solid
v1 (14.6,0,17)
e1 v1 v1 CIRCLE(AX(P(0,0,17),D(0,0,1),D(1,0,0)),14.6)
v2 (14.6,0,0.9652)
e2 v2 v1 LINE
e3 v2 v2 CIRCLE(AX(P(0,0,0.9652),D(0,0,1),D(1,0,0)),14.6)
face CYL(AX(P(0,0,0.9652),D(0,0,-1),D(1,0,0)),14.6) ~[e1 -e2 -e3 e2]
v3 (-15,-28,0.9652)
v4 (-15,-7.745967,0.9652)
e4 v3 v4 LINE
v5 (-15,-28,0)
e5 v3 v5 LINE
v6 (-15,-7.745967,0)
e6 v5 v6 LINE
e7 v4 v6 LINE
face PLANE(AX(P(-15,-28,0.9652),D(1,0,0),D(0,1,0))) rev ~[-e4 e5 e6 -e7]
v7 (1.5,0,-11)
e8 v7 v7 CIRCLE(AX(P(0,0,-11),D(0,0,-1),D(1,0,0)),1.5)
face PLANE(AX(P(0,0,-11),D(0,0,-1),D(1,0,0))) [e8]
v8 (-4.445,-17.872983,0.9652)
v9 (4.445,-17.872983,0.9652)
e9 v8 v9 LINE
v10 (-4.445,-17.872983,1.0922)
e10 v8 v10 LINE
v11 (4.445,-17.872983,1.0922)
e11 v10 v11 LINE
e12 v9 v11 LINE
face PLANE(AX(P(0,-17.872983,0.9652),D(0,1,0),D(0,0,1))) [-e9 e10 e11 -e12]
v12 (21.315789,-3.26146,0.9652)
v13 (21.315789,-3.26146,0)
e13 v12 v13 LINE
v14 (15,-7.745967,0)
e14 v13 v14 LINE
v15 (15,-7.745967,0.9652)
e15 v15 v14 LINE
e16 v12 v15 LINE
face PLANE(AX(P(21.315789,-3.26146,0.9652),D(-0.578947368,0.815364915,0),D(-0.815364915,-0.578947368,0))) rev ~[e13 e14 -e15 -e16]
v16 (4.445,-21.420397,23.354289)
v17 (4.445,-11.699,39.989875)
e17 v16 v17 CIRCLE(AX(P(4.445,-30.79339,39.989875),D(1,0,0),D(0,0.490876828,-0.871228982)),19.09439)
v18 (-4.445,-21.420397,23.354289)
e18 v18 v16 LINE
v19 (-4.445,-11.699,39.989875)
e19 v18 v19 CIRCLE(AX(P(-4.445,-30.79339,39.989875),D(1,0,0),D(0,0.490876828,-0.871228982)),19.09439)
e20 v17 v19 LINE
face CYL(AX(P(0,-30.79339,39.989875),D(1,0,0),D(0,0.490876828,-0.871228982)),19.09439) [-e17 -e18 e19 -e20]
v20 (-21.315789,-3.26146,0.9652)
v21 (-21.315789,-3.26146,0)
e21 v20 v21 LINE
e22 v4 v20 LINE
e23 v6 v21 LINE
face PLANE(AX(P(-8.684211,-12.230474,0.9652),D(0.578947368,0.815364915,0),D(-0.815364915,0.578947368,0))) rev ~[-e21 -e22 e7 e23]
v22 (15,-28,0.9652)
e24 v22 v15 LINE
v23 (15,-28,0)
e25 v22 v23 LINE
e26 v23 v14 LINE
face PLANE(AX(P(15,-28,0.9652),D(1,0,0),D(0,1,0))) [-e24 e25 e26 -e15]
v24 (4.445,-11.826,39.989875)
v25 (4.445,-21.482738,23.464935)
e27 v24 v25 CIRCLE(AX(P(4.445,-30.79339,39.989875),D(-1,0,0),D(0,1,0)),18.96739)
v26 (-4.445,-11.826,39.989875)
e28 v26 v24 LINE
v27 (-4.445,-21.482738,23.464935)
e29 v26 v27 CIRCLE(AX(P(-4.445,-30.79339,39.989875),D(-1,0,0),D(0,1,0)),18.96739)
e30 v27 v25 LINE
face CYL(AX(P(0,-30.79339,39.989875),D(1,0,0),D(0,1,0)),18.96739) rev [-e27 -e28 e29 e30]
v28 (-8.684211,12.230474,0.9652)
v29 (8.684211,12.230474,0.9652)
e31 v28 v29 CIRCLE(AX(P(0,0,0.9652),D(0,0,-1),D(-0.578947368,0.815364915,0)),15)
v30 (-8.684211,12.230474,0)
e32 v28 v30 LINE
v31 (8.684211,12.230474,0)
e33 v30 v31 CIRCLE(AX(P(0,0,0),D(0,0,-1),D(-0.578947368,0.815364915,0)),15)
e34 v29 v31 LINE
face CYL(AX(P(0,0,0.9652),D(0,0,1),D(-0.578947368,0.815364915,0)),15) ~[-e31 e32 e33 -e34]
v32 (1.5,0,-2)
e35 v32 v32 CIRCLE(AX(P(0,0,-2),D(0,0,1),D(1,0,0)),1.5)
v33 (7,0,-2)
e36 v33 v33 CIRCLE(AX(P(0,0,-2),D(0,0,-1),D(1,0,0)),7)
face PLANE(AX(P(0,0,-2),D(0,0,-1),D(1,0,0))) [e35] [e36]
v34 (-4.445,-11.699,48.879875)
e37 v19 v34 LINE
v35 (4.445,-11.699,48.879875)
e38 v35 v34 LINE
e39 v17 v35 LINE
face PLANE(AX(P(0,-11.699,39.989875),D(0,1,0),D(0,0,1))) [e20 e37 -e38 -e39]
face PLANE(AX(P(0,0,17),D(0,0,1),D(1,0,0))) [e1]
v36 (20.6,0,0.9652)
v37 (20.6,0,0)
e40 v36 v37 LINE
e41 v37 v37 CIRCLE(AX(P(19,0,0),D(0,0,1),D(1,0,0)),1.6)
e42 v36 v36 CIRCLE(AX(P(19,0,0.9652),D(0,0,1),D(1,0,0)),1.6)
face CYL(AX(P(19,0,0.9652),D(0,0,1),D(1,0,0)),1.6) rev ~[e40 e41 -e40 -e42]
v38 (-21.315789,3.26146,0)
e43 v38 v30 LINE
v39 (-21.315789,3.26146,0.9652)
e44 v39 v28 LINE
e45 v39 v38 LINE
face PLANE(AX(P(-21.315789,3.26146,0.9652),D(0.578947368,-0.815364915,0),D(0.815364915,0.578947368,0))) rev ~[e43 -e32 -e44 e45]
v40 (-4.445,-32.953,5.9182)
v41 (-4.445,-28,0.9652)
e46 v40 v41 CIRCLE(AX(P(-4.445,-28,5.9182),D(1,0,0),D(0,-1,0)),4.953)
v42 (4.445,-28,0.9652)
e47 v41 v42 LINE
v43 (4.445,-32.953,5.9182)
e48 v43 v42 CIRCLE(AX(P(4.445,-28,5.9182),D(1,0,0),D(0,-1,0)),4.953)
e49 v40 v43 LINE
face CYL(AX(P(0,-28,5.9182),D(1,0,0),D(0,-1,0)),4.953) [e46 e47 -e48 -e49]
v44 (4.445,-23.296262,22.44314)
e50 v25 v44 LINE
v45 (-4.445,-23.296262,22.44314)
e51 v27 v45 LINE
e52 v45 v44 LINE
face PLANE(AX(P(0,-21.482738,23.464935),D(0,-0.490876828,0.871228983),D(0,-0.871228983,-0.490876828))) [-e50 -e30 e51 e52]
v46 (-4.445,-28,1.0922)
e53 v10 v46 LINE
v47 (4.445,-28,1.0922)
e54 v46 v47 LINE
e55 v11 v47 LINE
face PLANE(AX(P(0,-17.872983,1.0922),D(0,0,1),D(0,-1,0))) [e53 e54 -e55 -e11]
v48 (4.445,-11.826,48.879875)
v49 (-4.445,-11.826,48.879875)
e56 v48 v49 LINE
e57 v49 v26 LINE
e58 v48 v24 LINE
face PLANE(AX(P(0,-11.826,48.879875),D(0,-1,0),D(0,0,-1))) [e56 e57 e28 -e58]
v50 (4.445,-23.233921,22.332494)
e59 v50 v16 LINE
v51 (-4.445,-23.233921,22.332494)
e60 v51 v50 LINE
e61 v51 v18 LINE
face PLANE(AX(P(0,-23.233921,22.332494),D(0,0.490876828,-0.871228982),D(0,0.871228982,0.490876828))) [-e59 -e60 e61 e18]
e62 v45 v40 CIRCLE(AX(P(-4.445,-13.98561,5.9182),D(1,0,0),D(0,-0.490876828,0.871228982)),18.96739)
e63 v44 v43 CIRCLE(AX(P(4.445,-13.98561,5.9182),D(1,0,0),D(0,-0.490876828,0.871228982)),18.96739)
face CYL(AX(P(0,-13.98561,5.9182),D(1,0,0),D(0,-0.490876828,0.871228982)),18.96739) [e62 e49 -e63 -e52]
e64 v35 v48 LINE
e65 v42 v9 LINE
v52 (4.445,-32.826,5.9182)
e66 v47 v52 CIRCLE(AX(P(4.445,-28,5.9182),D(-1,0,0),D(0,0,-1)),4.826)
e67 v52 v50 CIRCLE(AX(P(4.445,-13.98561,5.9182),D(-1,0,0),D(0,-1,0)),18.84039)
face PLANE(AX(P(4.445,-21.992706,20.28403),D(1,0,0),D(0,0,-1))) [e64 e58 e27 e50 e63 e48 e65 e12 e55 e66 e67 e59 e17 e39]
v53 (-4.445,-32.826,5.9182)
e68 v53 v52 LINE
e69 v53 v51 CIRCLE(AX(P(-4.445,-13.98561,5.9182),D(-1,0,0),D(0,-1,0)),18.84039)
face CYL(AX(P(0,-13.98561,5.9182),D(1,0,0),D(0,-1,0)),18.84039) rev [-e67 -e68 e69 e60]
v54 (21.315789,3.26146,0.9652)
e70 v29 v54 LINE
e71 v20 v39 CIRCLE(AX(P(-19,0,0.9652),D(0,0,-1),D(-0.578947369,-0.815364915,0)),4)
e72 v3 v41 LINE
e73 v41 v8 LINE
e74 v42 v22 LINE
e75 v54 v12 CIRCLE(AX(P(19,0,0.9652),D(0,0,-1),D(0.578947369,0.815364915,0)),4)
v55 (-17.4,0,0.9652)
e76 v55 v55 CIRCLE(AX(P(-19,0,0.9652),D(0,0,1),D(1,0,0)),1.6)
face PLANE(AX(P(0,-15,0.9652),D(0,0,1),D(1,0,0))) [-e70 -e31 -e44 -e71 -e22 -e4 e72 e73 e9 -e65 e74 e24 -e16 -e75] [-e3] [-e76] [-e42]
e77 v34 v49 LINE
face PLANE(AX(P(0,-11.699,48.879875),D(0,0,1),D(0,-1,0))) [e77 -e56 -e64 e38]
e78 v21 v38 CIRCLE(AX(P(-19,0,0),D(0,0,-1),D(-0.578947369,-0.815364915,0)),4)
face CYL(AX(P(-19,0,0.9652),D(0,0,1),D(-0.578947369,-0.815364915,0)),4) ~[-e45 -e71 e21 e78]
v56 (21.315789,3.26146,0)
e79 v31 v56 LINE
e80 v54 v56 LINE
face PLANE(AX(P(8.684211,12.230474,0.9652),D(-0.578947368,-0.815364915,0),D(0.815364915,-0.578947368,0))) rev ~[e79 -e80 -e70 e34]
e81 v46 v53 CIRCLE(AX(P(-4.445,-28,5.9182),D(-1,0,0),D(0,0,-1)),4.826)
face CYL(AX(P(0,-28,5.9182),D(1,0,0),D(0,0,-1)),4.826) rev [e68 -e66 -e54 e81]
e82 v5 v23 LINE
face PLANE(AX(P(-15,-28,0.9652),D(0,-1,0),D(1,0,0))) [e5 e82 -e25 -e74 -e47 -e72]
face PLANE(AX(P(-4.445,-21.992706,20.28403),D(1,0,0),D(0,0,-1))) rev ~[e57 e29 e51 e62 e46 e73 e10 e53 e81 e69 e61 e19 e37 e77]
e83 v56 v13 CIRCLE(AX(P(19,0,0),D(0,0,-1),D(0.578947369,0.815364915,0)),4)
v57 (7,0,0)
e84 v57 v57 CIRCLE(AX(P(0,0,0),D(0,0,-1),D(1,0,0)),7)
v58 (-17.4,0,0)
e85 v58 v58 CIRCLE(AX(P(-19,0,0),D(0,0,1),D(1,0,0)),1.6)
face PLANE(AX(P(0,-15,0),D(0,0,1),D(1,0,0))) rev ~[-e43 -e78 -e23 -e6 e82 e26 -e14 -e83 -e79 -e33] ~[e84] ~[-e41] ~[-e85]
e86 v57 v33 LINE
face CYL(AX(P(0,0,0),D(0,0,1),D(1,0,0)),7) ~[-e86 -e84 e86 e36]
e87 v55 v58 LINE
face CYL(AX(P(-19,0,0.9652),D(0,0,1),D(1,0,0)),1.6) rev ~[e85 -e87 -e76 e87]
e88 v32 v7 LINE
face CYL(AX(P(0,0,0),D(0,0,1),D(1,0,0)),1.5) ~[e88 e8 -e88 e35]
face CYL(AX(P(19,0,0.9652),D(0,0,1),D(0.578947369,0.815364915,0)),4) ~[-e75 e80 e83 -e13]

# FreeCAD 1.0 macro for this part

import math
import FreeCAD as App
import Part
import Sketcher

V = App.Vector

doc = App.newDocument("Part")
body = doc.addObject("PartDesign::Body", "Body")

# Sketch on XY plane
sketch1 = body.newObject("Sketcher::SketchObject", "Sketch")
sketch1.AttachmentSupport = (doc.getObject("XY_Plane"), [""])
sketch1.MapMode = "FlatFace"
sketch1.addGeometry(Part.Circle(V(0, 0, 0), V(0, 0, 1), 15), False)
sketch1.addConstraint([
    Sketcher.Constraint("Coincident", 0, 3, -1, 1),
    Sketcher.Constraint("Diameter", 0, 30.0),
])
pad1 = body.newObject("PartDesign::Pad", "Pad")
pad1.Profile = sketch1
pad1.Length = 0.9652

# Sketch on XY plane
sketch2 = body.newObject("Sketcher::SketchObject", "Sketch001")
sketch2.AttachmentSupport = (doc.getObject("XY_Plane"), [""])
sketch2.MapMode = "FlatFace"
sketch2.AttachmentOffset = App.Placement(V(0, 0, 0.9652), App.Rotation())
sketch2.addGeometry([
    Part.LineSegment(V(-8.7, 12.2, 0), V(-21.3, 3.3, 0)),  # 0
    Part.ArcOfCircle(Part.Circle(V(-19, 0, 0), V(0, 0, 1), 4), math.radians(125), math.radians(235)),  # 1
    Part.LineSegment(V(-21.3, -3.3, 0), V(-8.7, -12.2, 0)),  # 2
    Part.ArcOfCircle(Part.Circle(V(0, 0, 0), V(0, 0, 1), 15), math.radians(-125), math.radians(-55)),  # 3
    Part.LineSegment(V(8.7, -12.2, 0), V(21.3, -3.3, 0)),  # 4
    Part.ArcOfCircle(Part.Circle(V(19, 0, 0), V(0, 0, 1), 4), math.radians(-55), math.radians(55)),  # 5
    Part.LineSegment(V(21.3, 3.3, 0), V(8.7, 12.2, 0)),  # 6
    Part.ArcOfCircle(Part.Circle(V(0, 0, 0), V(0, 0, 1), 15), math.radians(55), math.radians(125)),  # 7
    Part.Circle(V(19, 0, 0), V(0, 0, 1), 1.6),  # 8
    Part.Circle(V(-19, 0, 0), V(0, 0, 1), 1.6),  # 9
], False)
sketch2.addConstraint([
    Sketcher.Constraint("Tangent", 0, 2, 1, 1),
    Sketcher.Constraint("Tangent", 1, 2, 2, 1),
    Sketcher.Constraint("Tangent", 2, 2, 3, 1),
    Sketcher.Constraint("Tangent", 3, 2, 4, 1),
    Sketcher.Constraint("Tangent", 4, 2, 5, 1),
    Sketcher.Constraint("Tangent", 5, 2, 6, 1),
    Sketcher.Constraint("Tangent", 6, 2, 7, 1),
    Sketcher.Constraint("Tangent", 7, 2, 0, 1),
    Sketcher.Constraint("Coincident", 3, 3, -1, 1),
    Sketcher.Constraint("Coincident", 7, 3, -1, 1),
    Sketcher.Constraint("Coincident", 8, 3, 5, 3),
    Sketcher.Constraint("Coincident", 9, 3, 1, 3),
    Sketcher.Constraint("Equal", 1, 5),
    Sketcher.Constraint("Equal", 3, 7),
    Sketcher.Constraint("Equal", 8, 9),
    Sketcher.Constraint("Symmetric", 1, 3, 5, 3, -1, 1),
    Sketcher.Constraint("PointOnObject", 1, 3, -1),
    Sketcher.Constraint("Radius", 1, 4.0),
    Sketcher.Constraint("Radius", 3, 15.0),
    Sketcher.Constraint("Diameter", 8, 3.2),
    Sketcher.Constraint("DistanceX", 1, 3, -1, 1, 19.0),
])
pad2 = body.newObject("PartDesign::Pad", "Pad001")
pad2.Profile = sketch2
pad2.Type = "UpToLast"
pad2.Reversed = True

# Sketch on XY plane
sketch3 = body.newObject("Sketcher::SketchObject", "Sketch002")
sketch3.AttachmentSupport = (doc.getObject("XY_Plane"), [""])
sketch3.MapMode = "FlatFace"
sketch3.AttachmentOffset = App.Placement(V(0, 0, 0.9652), App.Rotation())
sketch3.addGeometry([
    Part.LineSegment(V(-15, -2, 0), V(-15, -28, 0)),
    Part.LineSegment(V(-15, -28, 0), V(15, -28, 0)),
    Part.LineSegment(V(15, -28, 0), V(15, -2, 0)),
    Part.LineSegment(V(15, -2, 0), V(-15, -2, 0)),
], False)
sketch3.addConstraint([
    Sketcher.Constraint("Coincident", 0, 2, 1, 1),
    Sketcher.Constraint("Coincident", 1, 2, 2, 1),
    Sketcher.Constraint("Coincident", 2, 2, 3, 1),
    Sketcher.Constraint("Coincident", 3, 2, 0, 1),
    Sketcher.Constraint("Vertical", 0),
    Sketcher.Constraint("Horizontal", 1),
    Sketcher.Constraint("Vertical", 2),
    Sketcher.Constraint("Horizontal", 3),
    Sketcher.Constraint("DistanceX", 1, 1, 1, 2, 30.0),
    Sketcher.Constraint("DistanceY", 0, 2, 0, 1, 26.0),
    Sketcher.Constraint("DistanceX", 0, 2, -1, 1, 15.0),
    Sketcher.Constraint("DistanceY", 0, 2, -1, 1, 28.0),
])
pad3 = body.newObject("PartDesign::Pad", "Pad002")
pad3.Profile = sketch3
pad3.Type = "UpToLast"
pad3.Reversed = True

# Sketch on XY plane
sketch4 = body.newObject("Sketcher::SketchObject", "Sketch003")
sketch4.AttachmentSupport = (doc.getObject("XY_Plane"), [""])
sketch4.MapMode = "FlatFace"
sketch4.AttachmentOffset = App.Placement(V(0, 0, 0.9652), App.Rotation())
sketch4.addGeometry(Part.Circle(V(0, 0, 0), V(0, 0, 1), 15), False)
sketch4.addConstraint([
    Sketcher.Constraint("Coincident", 0, 3, -1, 1),
    Sketcher.Constraint("Diameter", 0, 29.2),
])
pad4 = body.newObject("PartDesign::Pad", "Pad003")
pad4.Profile = sketch4
pad4.Length = 16.0348

# Sketch on XY plane
sketch5 = body.newObject("Sketcher::SketchObject", "Sketch004")
sketch5.AttachmentSupport = (doc.getObject("XY_Plane"), [""])
sketch5.MapMode = "FlatFace"
sketch5.addGeometry(Part.Circle(V(0, 0, 0), V(0, 0, 1), 1.5), False)
sketch5.addConstraint([
    Sketcher.Constraint("Coincident", 0, 3, -1, 1),
    Sketcher.Constraint("Diameter", 0, 3.0),
])
pad5 = body.newObject("PartDesign::Pad", "Pad004")
pad5.Profile = sketch5
pad5.Length = 11
pad5.Reversed = True

# Sketch on XY plane
sketch6 = body.newObject("Sketcher::SketchObject", "Sketch005")
sketch6.AttachmentSupport = (doc.getObject("XY_Plane"), [""])
sketch6.MapMode = "FlatFace"
sketch6.addGeometry(Part.Circle(V(0, 0, 0), V(0, 0, 1), 7), False)
sketch6.addConstraint([
    Sketcher.Constraint("Coincident", 0, 3, -1, 1),
    Sketcher.Constraint("Diameter", 0, 14.0),
])
pad6 = body.newObject("PartDesign::Pad", "Pad005")
pad6.Profile = sketch6
pad6.Length = 2
pad6.Reversed = True

# Sketch on YZ plane
sketch7 = body.newObject("Sketcher::SketchObject", "Sketch006")
sketch7.AttachmentSupport = (doc.getObject("YZ_Plane"), [""])
sketch7.MapMode = "FlatFace"
sketch7.addGeometry([
    Part.LineSegment(V(-11.83, 48.88, 0), V(-11.83, 39.99, 0)),  # 0
    Part.ArcOfCircle(Part.Circle(V(-30.79, 39.99, 0), V(0, 0, 1), 18.97), math.radians(-61), math.radians(0)),  # 1
    Part.LineSegment(V(-21.48, 23.46, 0), V(-23.3, 22.44, 0)),  # 2
    Part.ArcOfCircle(Part.Circle(V(-13.99, 5.92, 0), V(0, 0, 1), 18.97), math.radians(119), math.radians(180)),  # 3
    Part.ArcOfCircle(Part.Circle(V(-28, 5.92, 0), V(0, 0, 1), 4.95), math.radians(-180), math.radians(-90)),  # 4
    Part.LineSegment(V(-28, 0.97, 0), V(-17.87, 0.97, 0)),  # 5
    Part.LineSegment(V(-17.87, 0.97, 0), V(-17.87, 1.09, 0)),  # 6
    Part.LineSegment(V(-17.87, 1.09, 0), V(-28, 1.09, 0)),  # 7
    Part.ArcOfCircle(Part.Circle(V(-28, 5.92, 0), V(0, 0, 1), 4.83), math.radians(180), math.radians(270)),  # 8
    Part.ArcOfCircle(Part.Circle(V(-13.99, 5.92, 0), V(0, 0, 1), 18.84), math.radians(119), math.radians(180)),  # 9
    Part.LineSegment(V(-23.23, 22.33, 0), V(-21.42, 23.35, 0)),  # 10
    Part.ArcOfCircle(Part.Circle(V(-30.79, 39.99, 0), V(0, 0, 1), 19.09), math.radians(-61), math.radians(0)),  # 11
    Part.LineSegment(V(-11.7, 39.99, 0), V(-11.7, 48.88, 0)),  # 12
    Part.LineSegment(V(-11.7, 48.88, 0), V(-11.83, 48.88, 0)),  # 13
], False)
sketch7.addConstraint([
    Sketcher.Constraint("Tangent", 0, 2, 1, 2),
    Sketcher.Constraint("Tangent", 1, 1, 2, 1),
    Sketcher.Constraint("Tangent", 2, 2, 3, 1),
    Sketcher.Constraint("Tangent", 3, 2, 4, 1),
    Sketcher.Constraint("Tangent", 4, 2, 5, 1),
    Sketcher.Constraint("Coincident", 5, 2, 6, 1),
    Sketcher.Constraint("Coincident", 6, 2, 7, 1),
    Sketcher.Constraint("Tangent", 7, 2, 8, 2),
    Sketcher.Constraint("Tangent", 8, 1, 9, 2),
    Sketcher.Constraint("Tangent", 9, 1, 10, 1),
    Sketcher.Constraint("Tangent", 10, 2, 11, 1),
    Sketcher.Constraint("Tangent", 11, 2, 12, 1),
    Sketcher.Constraint("Coincident", 12, 2, 13, 1),
    Sketcher.Constraint("Coincident", 13, 2, 0, 1),
    Sketcher.Constraint("Vertical", 0),
    Sketcher.Constraint("Horizontal", 5),
    Sketcher.Constraint("Vertical", 6),
    Sketcher.Constraint("Horizontal", 7),
    Sketcher.Constraint("Vertical", 12),
    Sketcher.Constraint("Horizontal", 13),
    Sketcher.Constraint("Coincident", 8, 3, 4, 3),
    Sketcher.Constraint("Coincident", 9, 3, 3, 3),
    Sketcher.Constraint("Coincident", 11, 3, 1, 3),
    Sketcher.Constraint("Equal", 1, 3),
    Sketcher.Constraint("Parallel", 2, 10),
    Sketcher.Constraint("Horizontal", 3, 3, 4, 3),
    Sketcher.Constraint("DistanceX", 4, 3, -1, 1, 28.0),
    Sketcher.Constraint("Radius", 4, 4.953),
    Sketcher.Constraint("Radius", 8, 4.826),
    Sketcher.Constraint("DistanceY", 0, 2, 0, 1, 8.89),
    Sketcher.Constraint("Radius", 1, 18.96739),
    Sketcher.Constraint("DistanceX", 0, 2, -1, 1, 11.826),
    Sketcher.Constraint("DistanceY", -1, 1, 3, 3, 5.9182),
    Sketcher.Constraint("Distance", 2, 2.08157),
    Sketcher.Constraint("DistanceX", 5, 1, 5, 2, 10.127017),
])
pad7 = body.newObject("PartDesign::Pad", "Pad006")
pad7.Profile = sketch7
pad7.Length = 8.89
pad7.Midplane = True

doc.recompute()
